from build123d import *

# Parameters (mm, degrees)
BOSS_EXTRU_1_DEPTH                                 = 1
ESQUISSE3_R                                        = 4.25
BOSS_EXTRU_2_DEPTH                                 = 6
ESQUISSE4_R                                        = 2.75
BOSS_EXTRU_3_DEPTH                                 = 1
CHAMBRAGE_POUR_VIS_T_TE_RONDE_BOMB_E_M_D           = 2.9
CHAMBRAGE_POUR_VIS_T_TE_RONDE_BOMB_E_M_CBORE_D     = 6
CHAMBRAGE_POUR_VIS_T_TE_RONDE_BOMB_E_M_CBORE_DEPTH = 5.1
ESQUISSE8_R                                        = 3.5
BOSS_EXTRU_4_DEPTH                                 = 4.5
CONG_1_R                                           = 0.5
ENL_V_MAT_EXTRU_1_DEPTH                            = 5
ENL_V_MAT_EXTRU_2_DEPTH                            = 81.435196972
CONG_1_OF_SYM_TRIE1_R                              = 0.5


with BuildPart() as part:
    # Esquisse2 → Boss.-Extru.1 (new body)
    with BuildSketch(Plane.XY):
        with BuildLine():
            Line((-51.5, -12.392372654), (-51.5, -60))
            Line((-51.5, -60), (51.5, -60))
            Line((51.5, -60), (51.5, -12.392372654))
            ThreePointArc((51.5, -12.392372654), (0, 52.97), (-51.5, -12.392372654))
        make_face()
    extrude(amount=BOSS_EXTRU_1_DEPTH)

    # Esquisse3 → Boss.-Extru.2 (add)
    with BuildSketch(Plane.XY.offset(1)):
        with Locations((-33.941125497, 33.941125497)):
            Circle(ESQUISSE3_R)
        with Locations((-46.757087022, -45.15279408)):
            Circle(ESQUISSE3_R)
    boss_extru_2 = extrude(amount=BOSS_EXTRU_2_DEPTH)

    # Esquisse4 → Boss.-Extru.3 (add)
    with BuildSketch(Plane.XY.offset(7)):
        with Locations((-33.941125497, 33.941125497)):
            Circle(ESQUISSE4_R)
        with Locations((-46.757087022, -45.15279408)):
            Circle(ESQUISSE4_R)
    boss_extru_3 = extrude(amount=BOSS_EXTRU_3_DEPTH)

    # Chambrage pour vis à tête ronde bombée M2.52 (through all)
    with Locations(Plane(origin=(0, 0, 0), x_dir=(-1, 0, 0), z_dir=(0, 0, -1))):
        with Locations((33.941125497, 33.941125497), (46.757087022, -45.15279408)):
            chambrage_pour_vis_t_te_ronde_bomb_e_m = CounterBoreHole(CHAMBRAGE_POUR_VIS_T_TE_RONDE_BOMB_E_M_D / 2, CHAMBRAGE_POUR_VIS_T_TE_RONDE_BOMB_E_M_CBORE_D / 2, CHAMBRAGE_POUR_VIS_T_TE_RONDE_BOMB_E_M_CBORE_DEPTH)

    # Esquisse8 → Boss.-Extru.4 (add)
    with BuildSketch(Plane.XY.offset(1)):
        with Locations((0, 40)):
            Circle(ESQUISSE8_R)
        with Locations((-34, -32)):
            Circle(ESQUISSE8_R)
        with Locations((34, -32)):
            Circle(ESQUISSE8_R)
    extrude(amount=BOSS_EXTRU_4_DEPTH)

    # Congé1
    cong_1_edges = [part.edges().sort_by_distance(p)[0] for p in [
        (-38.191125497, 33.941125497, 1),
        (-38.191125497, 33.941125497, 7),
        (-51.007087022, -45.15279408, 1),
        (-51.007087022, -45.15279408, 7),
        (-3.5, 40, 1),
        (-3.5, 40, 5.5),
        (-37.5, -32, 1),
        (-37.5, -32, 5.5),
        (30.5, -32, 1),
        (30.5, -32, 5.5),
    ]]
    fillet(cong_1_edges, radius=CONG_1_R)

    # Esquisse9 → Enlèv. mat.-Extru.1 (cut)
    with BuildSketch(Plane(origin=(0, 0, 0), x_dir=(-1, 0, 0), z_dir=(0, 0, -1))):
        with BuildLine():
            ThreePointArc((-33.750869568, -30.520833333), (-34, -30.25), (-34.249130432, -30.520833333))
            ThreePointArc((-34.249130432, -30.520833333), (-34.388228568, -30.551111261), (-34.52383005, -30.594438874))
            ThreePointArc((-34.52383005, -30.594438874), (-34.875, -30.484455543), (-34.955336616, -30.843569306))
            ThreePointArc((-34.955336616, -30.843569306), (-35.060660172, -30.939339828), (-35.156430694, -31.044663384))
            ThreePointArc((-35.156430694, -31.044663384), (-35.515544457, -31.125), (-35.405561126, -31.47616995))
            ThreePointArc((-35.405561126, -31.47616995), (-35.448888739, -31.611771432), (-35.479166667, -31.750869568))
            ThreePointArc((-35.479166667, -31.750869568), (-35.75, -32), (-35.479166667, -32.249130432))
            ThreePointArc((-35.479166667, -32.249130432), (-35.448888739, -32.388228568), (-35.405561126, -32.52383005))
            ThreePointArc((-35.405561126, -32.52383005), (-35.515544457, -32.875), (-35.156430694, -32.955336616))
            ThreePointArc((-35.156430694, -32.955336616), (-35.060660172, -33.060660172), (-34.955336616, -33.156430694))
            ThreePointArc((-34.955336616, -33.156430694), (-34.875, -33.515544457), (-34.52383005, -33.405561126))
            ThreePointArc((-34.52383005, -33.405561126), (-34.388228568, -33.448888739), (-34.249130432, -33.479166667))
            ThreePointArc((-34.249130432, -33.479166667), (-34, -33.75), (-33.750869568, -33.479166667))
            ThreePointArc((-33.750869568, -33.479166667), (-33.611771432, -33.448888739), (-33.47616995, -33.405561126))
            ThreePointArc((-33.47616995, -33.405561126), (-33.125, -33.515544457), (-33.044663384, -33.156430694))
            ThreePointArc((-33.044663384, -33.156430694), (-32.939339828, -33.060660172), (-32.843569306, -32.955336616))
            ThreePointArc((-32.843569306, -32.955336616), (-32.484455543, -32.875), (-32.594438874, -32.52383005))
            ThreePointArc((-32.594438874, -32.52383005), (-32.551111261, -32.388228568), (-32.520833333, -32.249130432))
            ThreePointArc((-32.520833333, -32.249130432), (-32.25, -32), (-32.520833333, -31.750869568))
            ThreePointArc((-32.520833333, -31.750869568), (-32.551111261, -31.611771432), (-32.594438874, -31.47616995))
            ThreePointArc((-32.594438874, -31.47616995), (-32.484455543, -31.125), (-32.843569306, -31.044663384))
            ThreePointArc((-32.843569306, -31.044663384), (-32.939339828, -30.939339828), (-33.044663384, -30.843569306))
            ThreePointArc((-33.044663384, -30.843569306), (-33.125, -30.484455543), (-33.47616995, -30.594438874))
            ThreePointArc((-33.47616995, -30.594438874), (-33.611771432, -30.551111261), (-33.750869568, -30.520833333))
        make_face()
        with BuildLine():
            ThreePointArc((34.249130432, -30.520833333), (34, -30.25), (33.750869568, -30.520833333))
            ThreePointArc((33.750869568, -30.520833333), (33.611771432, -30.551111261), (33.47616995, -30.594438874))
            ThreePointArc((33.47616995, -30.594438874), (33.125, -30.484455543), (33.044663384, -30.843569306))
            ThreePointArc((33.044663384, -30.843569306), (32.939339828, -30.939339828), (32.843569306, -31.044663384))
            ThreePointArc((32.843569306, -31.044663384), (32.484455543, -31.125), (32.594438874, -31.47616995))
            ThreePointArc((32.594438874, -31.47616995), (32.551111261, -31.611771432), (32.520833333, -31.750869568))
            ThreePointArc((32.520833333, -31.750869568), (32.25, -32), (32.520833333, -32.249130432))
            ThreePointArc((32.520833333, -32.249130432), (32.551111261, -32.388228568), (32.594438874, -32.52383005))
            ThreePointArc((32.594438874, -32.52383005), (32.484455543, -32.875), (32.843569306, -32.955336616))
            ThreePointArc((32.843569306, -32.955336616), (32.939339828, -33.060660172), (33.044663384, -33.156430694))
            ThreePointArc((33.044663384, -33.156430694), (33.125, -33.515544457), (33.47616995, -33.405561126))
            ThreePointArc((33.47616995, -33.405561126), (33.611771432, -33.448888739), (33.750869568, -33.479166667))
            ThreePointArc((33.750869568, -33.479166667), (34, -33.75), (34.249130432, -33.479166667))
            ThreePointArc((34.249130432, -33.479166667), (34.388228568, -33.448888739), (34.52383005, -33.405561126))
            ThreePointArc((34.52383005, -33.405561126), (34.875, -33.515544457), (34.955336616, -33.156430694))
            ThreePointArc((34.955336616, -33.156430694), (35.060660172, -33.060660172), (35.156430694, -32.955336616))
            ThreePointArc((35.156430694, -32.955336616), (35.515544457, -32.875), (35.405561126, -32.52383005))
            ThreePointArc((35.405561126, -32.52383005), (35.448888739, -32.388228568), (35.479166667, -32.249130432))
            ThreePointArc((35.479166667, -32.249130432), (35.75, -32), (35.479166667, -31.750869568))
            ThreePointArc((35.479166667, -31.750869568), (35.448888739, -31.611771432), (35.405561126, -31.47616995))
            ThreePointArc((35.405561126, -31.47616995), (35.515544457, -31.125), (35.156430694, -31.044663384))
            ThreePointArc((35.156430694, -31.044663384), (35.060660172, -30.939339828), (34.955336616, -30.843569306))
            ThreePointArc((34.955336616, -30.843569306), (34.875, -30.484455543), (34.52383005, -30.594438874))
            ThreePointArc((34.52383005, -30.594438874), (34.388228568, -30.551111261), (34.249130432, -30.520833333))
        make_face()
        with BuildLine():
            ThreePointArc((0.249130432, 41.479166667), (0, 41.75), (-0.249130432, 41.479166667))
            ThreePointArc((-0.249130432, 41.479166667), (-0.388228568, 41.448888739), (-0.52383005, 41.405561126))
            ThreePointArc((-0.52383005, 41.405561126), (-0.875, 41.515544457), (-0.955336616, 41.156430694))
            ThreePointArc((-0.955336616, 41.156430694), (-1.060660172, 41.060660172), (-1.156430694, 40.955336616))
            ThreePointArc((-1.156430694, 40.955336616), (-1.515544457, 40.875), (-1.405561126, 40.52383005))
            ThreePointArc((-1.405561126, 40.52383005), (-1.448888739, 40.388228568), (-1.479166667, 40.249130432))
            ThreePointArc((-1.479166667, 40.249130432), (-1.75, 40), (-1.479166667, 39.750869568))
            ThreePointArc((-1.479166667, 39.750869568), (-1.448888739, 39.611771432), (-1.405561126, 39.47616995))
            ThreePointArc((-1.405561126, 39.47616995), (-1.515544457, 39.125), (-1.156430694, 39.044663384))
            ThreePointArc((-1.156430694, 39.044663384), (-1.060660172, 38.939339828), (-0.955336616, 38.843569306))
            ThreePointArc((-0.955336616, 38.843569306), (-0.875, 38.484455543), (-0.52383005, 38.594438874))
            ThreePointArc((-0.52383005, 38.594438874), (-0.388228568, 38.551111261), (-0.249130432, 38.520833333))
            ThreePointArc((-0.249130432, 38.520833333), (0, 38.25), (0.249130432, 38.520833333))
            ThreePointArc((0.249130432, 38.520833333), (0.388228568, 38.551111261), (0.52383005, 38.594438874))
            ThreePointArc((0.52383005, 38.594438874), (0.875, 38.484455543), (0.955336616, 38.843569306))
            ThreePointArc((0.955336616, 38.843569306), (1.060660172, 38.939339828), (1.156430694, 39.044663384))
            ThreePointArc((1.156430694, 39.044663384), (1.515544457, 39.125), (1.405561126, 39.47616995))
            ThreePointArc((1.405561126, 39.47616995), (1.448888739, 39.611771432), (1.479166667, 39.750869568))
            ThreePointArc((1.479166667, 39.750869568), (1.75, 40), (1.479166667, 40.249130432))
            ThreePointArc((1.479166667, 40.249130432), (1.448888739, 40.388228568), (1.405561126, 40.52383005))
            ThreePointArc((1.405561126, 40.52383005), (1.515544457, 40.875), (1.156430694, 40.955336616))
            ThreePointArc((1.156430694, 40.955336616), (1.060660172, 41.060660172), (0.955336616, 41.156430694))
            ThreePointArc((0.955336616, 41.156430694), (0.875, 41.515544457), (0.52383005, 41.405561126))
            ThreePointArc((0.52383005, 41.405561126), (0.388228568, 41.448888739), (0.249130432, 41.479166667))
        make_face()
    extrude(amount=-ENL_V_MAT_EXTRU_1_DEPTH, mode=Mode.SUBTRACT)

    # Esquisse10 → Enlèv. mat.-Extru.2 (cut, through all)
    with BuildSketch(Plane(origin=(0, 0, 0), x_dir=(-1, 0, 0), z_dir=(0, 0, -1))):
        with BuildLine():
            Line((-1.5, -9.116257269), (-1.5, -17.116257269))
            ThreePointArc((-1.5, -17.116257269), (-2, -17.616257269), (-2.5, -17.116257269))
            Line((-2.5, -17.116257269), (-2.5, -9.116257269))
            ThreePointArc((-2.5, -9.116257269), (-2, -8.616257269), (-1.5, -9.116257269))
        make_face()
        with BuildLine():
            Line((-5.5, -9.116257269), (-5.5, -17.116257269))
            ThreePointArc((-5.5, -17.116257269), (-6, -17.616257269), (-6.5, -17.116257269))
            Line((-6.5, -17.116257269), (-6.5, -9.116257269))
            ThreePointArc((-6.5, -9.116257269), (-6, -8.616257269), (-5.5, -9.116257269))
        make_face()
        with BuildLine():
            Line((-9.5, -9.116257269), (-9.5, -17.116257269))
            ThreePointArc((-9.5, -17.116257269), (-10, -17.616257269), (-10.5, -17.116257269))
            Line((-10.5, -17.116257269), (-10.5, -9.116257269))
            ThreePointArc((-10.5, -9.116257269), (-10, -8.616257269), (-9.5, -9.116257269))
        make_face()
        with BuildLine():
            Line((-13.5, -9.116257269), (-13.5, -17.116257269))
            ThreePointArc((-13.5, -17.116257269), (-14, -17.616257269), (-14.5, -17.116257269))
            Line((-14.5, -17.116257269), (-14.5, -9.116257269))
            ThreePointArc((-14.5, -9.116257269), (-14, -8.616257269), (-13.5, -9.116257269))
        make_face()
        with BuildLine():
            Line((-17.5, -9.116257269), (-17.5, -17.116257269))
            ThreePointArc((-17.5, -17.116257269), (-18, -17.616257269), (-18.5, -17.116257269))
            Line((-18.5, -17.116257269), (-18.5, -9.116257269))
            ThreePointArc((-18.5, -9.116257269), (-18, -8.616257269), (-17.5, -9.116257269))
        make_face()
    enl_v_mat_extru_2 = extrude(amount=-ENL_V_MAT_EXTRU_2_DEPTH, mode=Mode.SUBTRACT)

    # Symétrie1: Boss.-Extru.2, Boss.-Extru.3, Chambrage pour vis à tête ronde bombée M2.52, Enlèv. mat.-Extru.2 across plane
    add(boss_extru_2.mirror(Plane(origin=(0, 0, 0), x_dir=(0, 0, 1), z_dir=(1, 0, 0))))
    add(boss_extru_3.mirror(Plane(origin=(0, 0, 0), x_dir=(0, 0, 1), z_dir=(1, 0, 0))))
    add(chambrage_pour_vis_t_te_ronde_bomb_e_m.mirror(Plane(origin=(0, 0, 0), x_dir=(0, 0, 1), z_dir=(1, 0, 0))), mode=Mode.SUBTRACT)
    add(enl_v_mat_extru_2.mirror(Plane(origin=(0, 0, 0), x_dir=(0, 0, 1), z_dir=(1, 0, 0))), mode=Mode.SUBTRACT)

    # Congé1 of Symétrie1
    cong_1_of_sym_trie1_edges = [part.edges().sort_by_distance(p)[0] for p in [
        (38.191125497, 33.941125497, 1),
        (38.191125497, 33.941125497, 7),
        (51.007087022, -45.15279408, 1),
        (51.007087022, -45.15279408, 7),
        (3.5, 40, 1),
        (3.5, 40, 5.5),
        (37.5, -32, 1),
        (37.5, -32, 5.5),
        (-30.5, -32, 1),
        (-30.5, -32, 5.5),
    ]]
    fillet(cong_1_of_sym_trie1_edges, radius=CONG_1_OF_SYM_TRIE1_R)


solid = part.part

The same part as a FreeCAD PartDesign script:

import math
import FreeCAD as App
import Part
import Sketcher
Q = App.Units.Quantity


def edges_at(feature, points):
    """Names of the edges that pass closest to the given points."""
    edges = feature.Shape.Edges
    near = lambda p: min(range(len(edges)), key=lambda i: edges[i].distToShape(Part.Vertex(*p))[0])
    return sorted({f"Edge{near(p) + 1}" for p in points})

doc = App.newDocument("Part")
params = doc.addObject("Spreadsheet::Sheet", "Params")
for row, (alias, value) in enumerate([
    ("sketch1_width", "103 mm"),
    ("sketch1_radius", "52.97 mm"),
    ("pad1_length", "1 mm"),
    ("sketch2_diameter", "8.5 mm"),
    ("pad2_length", "6 mm"),
    ("sketch3_diameter", "5.5 mm"),
    ("pad3_length", "1 mm"),
    ("sketch4_diameter", "2.9 mm"),
    ("hole_diameter", "2.9 mm"),
    ("hole_cbore_diameter", "6 mm"),
    ("hole_cbore_depth", "5.1 mm"),
    ("sketch5_diameter", "7 mm"),
    ("pad4_length", "4.5 mm"),
    ("fillet_radius", "0.5 mm"),
    ("sketch6_radius", "1.5 mm"),
    ("sketch6_radius2", "0.25 mm"),
    ("pocket1_length", "5 mm"),
    ("sketch7_radius", "0.5 mm"),
    ("sketch7_height", "8 mm"),
    ("fillet2_radius", "0.5 mm"),
], start=1):
    params.set(f"A{row}", alias)
    params.set(f"B{row}", "=" + value)
    params.setAlias(f"B{row}", alias)

body = doc.addObject("PartDesign::Body", "Body")

# Sketch on XY plane
sketch1 = doc.addObject("Sketcher::SketchObject", "Sketch")
body.addObject(sketch1)
sketch1.AttachmentSupport = (doc.XY_Plane, [""])
sketch1.MapMode = "FlatFace"
sketch1.addGeometry([
    Part.LineSegment(App.Vector(-51.5, -12.392373, 0), App.Vector(-51.5, -60, 0)),
    Part.LineSegment(App.Vector(-51.5, -60, 0), App.Vector(51.5, -60, 0)),
    Part.LineSegment(App.Vector(51.5, -60, 0), App.Vector(51.5, -12.392373, 0)),
    Part.ArcOfCircle(Part.Circle(App.Vector(0, 0, 0), App.Vector(0, 0, 1), 52.97), math.radians(-13.529783), math.radians(193.529783)),
], False)
sketch1.addConstraint([
    Sketcher.Constraint("Coincident", 0, 2, 1, 1),
    Sketcher.Constraint("Coincident", 1, 2, 2, 1),
    Sketcher.Constraint("Coincident", 2, 2, 3, 1),
    Sketcher.Constraint("Coincident", 3, 2, 0, 1),
    Sketcher.Constraint("Vertical", 0),
    Sketcher.Constraint("Horizontal", 1),
    Sketcher.Constraint("Vertical", 2),
    Sketcher.Constraint("Coincident", 3, 3, -1, 1),
    Sketcher.Constraint("Horizontal", 2, 2, 3, 2),
    Sketcher.Constraint("DistanceX", 1, 1, 1, 2, Q("103 mm")),
    Sketcher.Constraint("Radius", 3, Q("52.97 mm")),
    Sketcher.Constraint("DistanceY", 0, 2, -1, 1, Q("60 mm")),
])
sketch1.setExpression("Constraints[9]", "Params.sketch1_width")
sketch1.setExpression("Constraints[10]", "Params.sketch1_radius")
pad1 = doc.addObject("PartDesign::Pad", "Pad")
body.addObject(pad1)
pad1.Profile = sketch1
pad1.setExpression("Length", "Params.pad1_length")

# Sketch on XY plane
sketch2 = doc.addObject("Sketcher::SketchObject", "Sketch001")
body.addObject(sketch2)
sketch2.AttachmentSupport = (doc.XY_Plane, [""])
sketch2.MapMode = "FlatFace"
sketch2.AttachmentOffset = App.Placement(App.Vector(0, 0, 1), App.Rotation())
sketch2.addGeometry([
    Part.Circle(App.Vector(-33.941125, 33.941125, 0), App.Vector(0, 0, 1), 4.25),
    Part.Circle(App.Vector(-46.757087, -45.152794, 0), App.Vector(0, 0, 1), 4.25),
], False)
sketch2.addConstraint([
    Sketcher.Constraint("Equal", 0, 1),
    Sketcher.Constraint("Diameter", 0, Q("8.5 mm")),
    Sketcher.Constraint("DistanceX", 1, 3, 0, 3, Q("12.815962 mm")),
    Sketcher.Constraint("DistanceY", 1, 3, 0, 3, Q("79.09392 mm")),
    Sketcher.Constraint("DistanceX", 0, 3, -1, 1, Q("33.941125 mm")),
    Sketcher.Constraint("DistanceY", -1, 1, 0, 3, Q("33.941125 mm")),
])
sketch2.setExpression("Constraints[1]", "Params.sketch2_diameter")
pad2 = doc.addObject("PartDesign::Pad", "Pad001")
body.addObject(pad2)
pad2.Profile = sketch2
pad2.setExpression("Length", "Params.pad2_length")

# Sketch on XY plane
sketch3 = doc.addObject("Sketcher::SketchObject", "Sketch002")
body.addObject(sketch3)
sketch3.AttachmentSupport = (doc.XY_Plane, [""])
sketch3.MapMode = "FlatFace"
sketch3.AttachmentOffset = App.Placement(App.Vector(0, 0, 7), App.Rotation())
sketch3.addGeometry([
    Part.Circle(App.Vector(-33.941125, 33.941125, 0), App.Vector(0, 0, 1), 2.75),
    Part.Circle(App.Vector(-46.757087, -45.152794, 0), App.Vector(0, 0, 1), 2.75),
], False)
sketch3.addConstraint([
    Sketcher.Constraint("Equal", 0, 1),
    Sketcher.Constraint("Diameter", 0, Q("5.5 mm")),
    Sketcher.Constraint("DistanceX", 1, 3, 0, 3, Q("12.815962 mm")),
    Sketcher.Constraint("DistanceY", 1, 3, 0, 3, Q("79.09392 mm")),
    Sketcher.Constraint("DistanceX", 0, 3, -1, 1, Q("33.941125 mm")),
    Sketcher.Constraint("DistanceY", -1, 1, 0, 3, Q("33.941125 mm")),
])
sketch3.setExpression("Constraints[1]", "Params.sketch3_diameter")
pad3 = doc.addObject("PartDesign::Pad", "Pad002")
body.addObject(pad3)
pad3.Profile = sketch3
pad3.setExpression("Length", "Params.pad3_length")

# Sketch on XY plane
sketch4 = doc.addObject("Sketcher::SketchObject", "Sketch003")
body.addObject(sketch4)
sketch4.AttachmentSupport = (doc.XY_Plane, [""])
sketch4.MapMode = "FlatFace"
sketch4.addGeometry([
    Part.Circle(App.Vector(-33.941125, 33.941125, 0), App.Vector(0, 0, 1), 1.45),
    Part.Circle(App.Vector(-46.757087, -45.152794, 0), App.Vector(0, 0, 1), 1.45),
], False)
sketch4.addConstraint([
    Sketcher.Constraint("Equal", 0, 1),
    Sketcher.Constraint("Diameter", 0, Q("2.9 mm")),
    Sketcher.Constraint("DistanceX", 1, 3, 0, 3, Q("12.815962 mm")),
    Sketcher.Constraint("DistanceY", 1, 3, 0, 3, Q("79.09392 mm")),
    Sketcher.Constraint("DistanceX", 0, 3, -1, 1, Q("33.941125 mm")),
    Sketcher.Constraint("DistanceY", -1, 1, 0, 3, Q("33.941125 mm")),
])
sketch4.setExpression("Constraints[1]", "Params.sketch4_diameter")
doc.recompute()
hole = doc.addObject("PartDesign::Hole", "Hole")
body.addObject(hole)
hole.Profile = sketch4
hole.ThreadType = "None"
hole.setExpression("Diameter", "Params.hole_diameter")
hole.DepthType = "ThroughAll"
hole.HoleCutType = "Counterbore"
hole.setExpression("HoleCutDiameter", "Params.hole_cbore_diameter")
hole.setExpression("HoleCutDepth", "Params.hole_cbore_depth")
hole.Reversed = True

# Sketch on XY plane
sketch5 = doc.addObject("Sketcher::SketchObject", "Sketch004")
body.addObject(sketch5)
sketch5.AttachmentSupport = (doc.XY_Plane, [""])
sketch5.MapMode = "FlatFace"
sketch5.AttachmentOffset = App.Placement(App.Vector(0, 0, 1), App.Rotation())
sketch5.addGeometry([
    Part.Circle(App.Vector(0, 40, 0), App.Vector(0, 0, 1), 3.5),
    Part.Circle(App.Vector(-34, -32, 0), App.Vector(0, 0, 1), 3.5),
    Part.Circle(App.Vector(34, -32, 0), App.Vector(0, 0, 1), 3.5),
], False)
sketch5.addConstraint([
    Sketcher.Constraint("Equal", 0, 1),
    Sketcher.Constraint("Equal", 1, 2),
    Sketcher.Constraint("Symmetric", 1, 3, 2, 3, -2),
    Sketcher.Constraint("PointOnObject", 0, 3, -2),
    Sketcher.Constraint("Diameter", 0, Q("7 mm")),
    Sketcher.Constraint("DistanceY", -1, 1, 0, 3, Q("40 mm")),
    Sketcher.Constraint("DistanceX", 1, 3, -1, 1, Q("34 mm")),
    Sketcher.Constraint("DistanceY", 1, 3, -1, 1, Q("32 mm")),
])
sketch5.setExpression("Constraints[4]", "Params.sketch5_diameter")
pad4 = doc.addObject("PartDesign::Pad", "Pad003")
body.addObject(pad4)
pad4.Profile = sketch5
pad4.setExpression("Length", "Params.pad4_length")
doc.recompute()

fillet = doc.addObject("PartDesign::Fillet", "Fillet")
body.addObject(fillet)
fillet.Base = (pad4, edges_at(pad4, [
    (-38.191, 33.941, 1),
    (-38.191, 33.941, 7),
    (-51.007, -45.153, 1),
    (-51.007, -45.153, 7),
    (-3.5, 40, 1),
    (-3.5, 40, 5.5),
    (-37.5, -32, 1),
    (-37.5, -32, 5.5),
    (30.5, -32, 1),
    (30.5, -32, 5.5),
]))
fillet.setExpression("Radius", "Params.fillet_radius")

# Sketch on XY plane
sketch6 = doc.addObject("Sketcher::SketchObject", "Sketch005")
body.addObject(sketch6)
sketch6.AttachmentSupport = (doc.XY_Plane, [""])
sketch6.MapMode = "FlatFace"
sketch6.addGeometry([
    Part.ArcOfCircle(Part.Circle(App.Vector(34, -30.5, 0), App.Vector(0, 0, 1), 0.25), math.radians(-4.780192), math.radians(184.780192)),  # 0
    Part.ArcOfCircle(Part.Circle(App.Vector(34, -32, 0), App.Vector(0, 0, 1), 1.5), math.radians(69.560384), math.radians(80.439616)),  # 1
    Part.ArcOfCircle(Part.Circle(App.Vector(34.75, -30.700962, 0), App.Vector(0, 0, 1), 0.25), math.radians(-34.780192), math.radians(154.780192)),  # 2
    Part.ArcOfCircle(Part.Circle(App.Vector(34, -32, 0), App.Vector(0, 0, 1), 1.5), math.radians(39.560383), math.radians(50.439617)),  # 3
    Part.ArcOfCircle(Part.Circle(App.Vector(35.299038, -31.25, 0), App.Vector(0, 0, 1), 0.25), math.radians(-64.780192), math.radians(124.780192)),  # 4
    Part.ArcOfCircle(Part.Circle(App.Vector(34, -32, 0), App.Vector(0, 0, 1), 1.5), math.radians(9.560384), math.radians(20.439616)),  # 5
    Part.ArcOfCircle(Part.Circle(App.Vector(35.5, -32, 0), App.Vector(0, 0, 1), 0.25), math.radians(-94.780192), math.radians(94.780192)),  # 6
    Part.ArcOfCircle(Part.Circle(App.Vector(34, -32, 0), App.Vector(0, 0, 1), 1.5), math.radians(-20.439616), math.radians(-9.560384)),  # 7
    Part.ArcOfCircle(Part.Circle(App.Vector(35.299038, -32.75, 0), App.Vector(0, 0, 1), 0.25), math.radians(-124.780192), math.radians(64.780192)),  # 8
    Part.ArcOfCircle(Part.Circle(App.Vector(34, -32, 0), App.Vector(0, 0, 1), 1.5), math.radians(-50.439617), math.radians(-39.560383)),  # 9
    Part.ArcOfCircle(Part.Circle(App.Vector(34.75, -33.299038, 0), App.Vector(0, 0, 1), 0.25), math.radians(-154.780192), math.radians(34.780192)),  # 10
    Part.ArcOfCircle(Part.Circle(App.Vector(34, -32, 0), App.Vector(0, 0, 1), 1.5), math.radians(-80.439616), math.radians(-69.560384)),  # 11
    Part.ArcOfCircle(Part.Circle(App.Vector(34, -33.5, 0), App.Vector(0, 0, 1), 0.25), math.radians(175.219808), math.radians(364.780192)),  # 12
    Part.ArcOfCircle(Part.Circle(App.Vector(34, -32, 0), App.Vector(0, 0, 1), 1.5), math.radians(-110.439616), math.radians(-99.560384)),  # 13
    Part.ArcOfCircle(Part.Circle(App.Vector(33.25, -33.299038, 0), App.Vector(0, 0, 1), 0.25), math.radians(145.219808), math.radians(334.780192)),  # 14
    Part.ArcOfCircle(Part.Circle(App.Vector(34, -32, 0), App.Vector(0, 0, 1), 1.5), math.radians(-140.439617), math.radians(-129.560383)),  # 15
    Part.ArcOfCircle(Part.Circle(App.Vector(32.700962, -32.75, 0), App.Vector(0, 0, 1), 0.25), math.radians(115.219808), math.radians(304.780192)),  # 16
    Part.ArcOfCircle(Part.Circle(App.Vector(34, -32, 0), App.Vector(0, 0, 1), 1.5), math.radians(-170.439616), math.radians(-159.560384)),  # 17
    Part.ArcOfCircle(Part.Circle(App.Vector(32.5, -32, 0), App.Vector(0, 0, 1), 0.25), math.radians(85.219808), math.radians(274.780192)),  # 18
    Part.ArcOfCircle(Part.Circle(App.Vector(34, -32, 0), App.Vector(0, 0, 1), 1.5), math.radians(159.560384), math.radians(170.439616)),  # 19
    Part.ArcOfCircle(Part.Circle(App.Vector(32.700962, -31.25, 0), App.Vector(0, 0, 1), 0.25), math.radians(55.219808), math.radians(244.780192)),  # 20
    Part.ArcOfCircle(Part.Circle(App.Vector(34, -32, 0), App.Vector(0, 0, 1), 1.5), math.radians(129.560383), math.radians(140.439617)),  # 21
    Part.ArcOfCircle(Part.Circle(App.Vector(33.25, -30.700962, 0), App.Vector(0, 0, 1), 0.25), math.radians(25.219808), math.radians(214.780192)),  # 22
    Part.ArcOfCircle(Part.Circle(App.Vector(34, -32, 0), App.Vector(0, 0, 1), 1.5), math.radians(99.560384), math.radians(110.439616)),  # 23
    Part.ArcOfCircle(Part.Circle(App.Vector(-34, -30.5, 0), App.Vector(0, 0, 1), 0.25), math.radians(-4.780192), math.radians(184.780192)),  # 24
    Part.ArcOfCircle(Part.Circle(App.Vector(-34, -32, 0), App.Vector(0, 0, 1), 1.5), math.radians(69.560384), math.radians(80.439616)),  # 25
    Part.ArcOfCircle(Part.Circle(App.Vector(-33.25, -30.700962, 0), App.Vector(0, 0, 1), 0.25), math.radians(-34.780192), math.radians(154.780192)),  # 26
    Part.ArcOfCircle(Part.Circle(App.Vector(-34, -32, 0), App.Vector(0, 0, 1), 1.5), math.radians(39.560383), math.radians(50.439617)),  # 27
    Part.ArcOfCircle(Part.Circle(App.Vector(-32.700962, -31.25, 0), App.Vector(0, 0, 1), 0.25), math.radians(-64.780192), math.radians(124.780192)),  # 28
    Part.ArcOfCircle(Part.Circle(App.Vector(-34, -32, 0), App.Vector(0, 0, 1), 1.5), math.radians(9.560384), math.radians(20.439616)),  # 29
    Part.ArcOfCircle(Part.Circle(App.Vector(-32.5, -32, 0), App.Vector(0, 0, 1), 0.25), math.radians(-94.780192), math.radians(94.780192)),  # 30
    Part.ArcOfCircle(Part.Circle(App.Vector(-34, -32, 0), App.Vector(0, 0, 1), 1.5), math.radians(-20.439616), math.radians(-9.560384)),  # 31
    Part.ArcOfCircle(Part.Circle(App.Vector(-32.700962, -32.75, 0), App.Vector(0, 0, 1), 0.25), math.radians(-124.780192), math.radians(64.780192)),  # 32
    Part.ArcOfCircle(Part.Circle(App.Vector(-34, -32, 0), App.Vector(0, 0, 1), 1.5), math.radians(-50.439617), math.radians(-39.560383)),  # 33
    Part.ArcOfCircle(Part.Circle(App.Vector(-33.25, -33.299038, 0), App.Vector(0, 0, 1), 0.25), math.radians(-154.780192), math.radians(34.780192)),  # 34
    Part.ArcOfCircle(Part.Circle(App.Vector(-34, -32, 0), App.Vector(0, 0, 1), 1.5), math.radians(-80.439616), math.radians(-69.560384)),  # 35
    Part.ArcOfCircle(Part.Circle(App.Vector(-34, -33.5, 0), App.Vector(0, 0, 1), 0.25), math.radians(175.219808), math.radians(364.780192)),  # 36
    Part.ArcOfCircle(Part.Circle(App.Vector(-34, -32, 0), App.Vector(0, 0, 1), 1.5), math.radians(-110.439616), math.radians(-99.560384)),  # 37
    Part.ArcOfCircle(Part.Circle(App.Vector(-34.75, -33.299038, 0), App.Vector(0, 0, 1), 0.25), math.radians(145.219808), math.radians(334.780192)),  # 38
    Part.ArcOfCircle(Part.Circle(App.Vector(-34, -32, 0), App.Vector(0, 0, 1), 1.5), math.radians(-140.439617), math.radians(-129.560383)),  # 39
    Part.ArcOfCircle(Part.Circle(App.Vector(-35.299038, -32.75, 0), App.Vector(0, 0, 1), 0.25), math.radians(115.219808), math.radians(304.780192)),  # 40
    Part.ArcOfCircle(Part.Circle(App.Vector(-34, -32, 0), App.Vector(0, 0, 1), 1.5), math.radians(-170.439616), math.radians(-159.560384)),  # 41
    Part.ArcOfCircle(Part.Circle(App.Vector(-35.5, -32, 0), App.Vector(0, 0, 1), 0.25), math.radians(85.219808), math.radians(274.780192)),  # 42
    Part.ArcOfCircle(Part.Circle(App.Vector(-34, -32, 0), App.Vector(0, 0, 1), 1.5), math.radians(159.560384), math.radians(170.439616)),  # 43
    Part.ArcOfCircle(Part.Circle(App.Vector(-35.299038, -31.25, 0), App.Vector(0, 0, 1), 0.25), math.radians(55.219808), math.radians(244.780192)),  # 44
    Part.ArcOfCircle(Part.Circle(App.Vector(-34, -32, 0), App.Vector(0, 0, 1), 1.5), math.radians(129.560383), math.radians(140.439617)),  # 45
    Part.ArcOfCircle(Part.Circle(App.Vector(-34.75, -30.700962, 0), App.Vector(0, 0, 1), 0.25), math.radians(25.219808), math.radians(214.780192)),  # 46
    Part.ArcOfCircle(Part.Circle(App.Vector(-34, -32, 0), App.Vector(0, 0, 1), 1.5), math.radians(99.560384), math.radians(110.439616)),  # 47
    Part.ArcOfCircle(Part.Circle(App.Vector(0, 41.5, 0), App.Vector(0, 0, 1), 0.25), math.radians(-4.780192), math.radians(184.780192)),  # 48
    Part.ArcOfCircle(Part.Circle(App.Vector(0, 40, 0), App.Vector(0, 0, 1), 1.5), math.radians(69.560384), math.radians(80.439616)),  # 49
    Part.ArcOfCircle(Part.Circle(App.Vector(0.75, 41.299038, 0), App.Vector(0, 0, 1), 0.25), math.radians(-34.780192), math.radians(154.780192)),  # 50
    Part.ArcOfCircle(Part.Circle(App.Vector(0, 40, 0), App.Vector(0, 0, 1), 1.5), math.radians(39.560383), math.radians(50.439617)),  # 51
    Part.ArcOfCircle(Part.Circle(App.Vector(1.299038, 40.75, 0), App.Vector(0, 0, 1), 0.25), math.radians(-64.780192), math.radians(124.780192)),  # 52
    Part.ArcOfCircle(Part.Circle(App.Vector(0, 40, 0), App.Vector(0, 0, 1), 1.5), math.radians(9.560384), math.radians(20.439616)),  # 53
    Part.ArcOfCircle(Part.Circle(App.Vector(1.5, 40, 0), App.Vector(0, 0, 1), 0.25), math.radians(-94.780192), math.radians(94.780192)),  # 54
    Part.ArcOfCircle(Part.Circle(App.Vector(0, 40, 0), App.Vector(0, 0, 1), 1.5), math.radians(-20.439616), math.radians(-9.560384)),  # 55
    Part.ArcOfCircle(Part.Circle(App.Vector(1.299038, 39.25, 0), App.Vector(0, 0, 1), 0.25), math.radians(-124.780192), math.radians(64.780192)),  # 56
    Part.ArcOfCircle(Part.Circle(App.Vector(0, 40, 0), App.Vector(0, 0, 1), 1.5), math.radians(-50.439617), math.radians(-39.560383)),  # 57
    Part.ArcOfCircle(Part.Circle(App.Vector(0.75, 38.700962, 0), App.Vector(0, 0, 1), 0.25), math.radians(-154.780192), math.radians(34.780192)),  # 58
    Part.ArcOfCircle(Part.Circle(App.Vector(0, 40, 0), App.Vector(0, 0, 1), 1.5), math.radians(-80.439616), math.radians(-69.560384)),  # 59
    Part.ArcOfCircle(Part.Circle(App.Vector(0, 38.5, 0), App.Vector(0, 0, 1), 0.25), math.radians(175.219808), math.radians(364.780192)),  # 60
    Part.ArcOfCircle(Part.Circle(App.Vector(0, 40, 0), App.Vector(0, 0, 1), 1.5), math.radians(-110.439616), math.radians(-99.560384)),  # 61
    Part.ArcOfCircle(Part.Circle(App.Vector(-0.75, 38.700962, 0), App.Vector(0, 0, 1), 0.25), math.radians(145.219808), math.radians(334.780192)),  # 62
    Part.ArcOfCircle(Part.Circle(App.Vector(0, 40, 0), App.Vector(0, 0, 1), 1.5), math.radians(-140.439617), math.radians(-129.560383)),  # 63
    Part.ArcOfCircle(Part.Circle(App.Vector(-1.299038, 39.25, 0), App.Vector(0, 0, 1), 0.25), math.radians(115.219808), math.radians(304.780192)),  # 64
    Part.ArcOfCircle(Part.Circle(App.Vector(0, 40, 0), App.Vector(0, 0, 1), 1.5), math.radians(-170.439616), math.radians(-159.560384)),  # 65
    Part.ArcOfCircle(Part.Circle(App.Vector(-1.5, 40, 0), App.Vector(0, 0, 1), 0.25), math.radians(85.219808), math.radians(274.780192)),  # 66
    Part.ArcOfCircle(Part.Circle(App.Vector(0, 40, 0), App.Vector(0, 0, 1), 1.5), math.radians(159.560384), math.radians(170.439616)),  # 67
    Part.ArcOfCircle(Part.Circle(App.Vector(-1.299038, 40.75, 0), App.Vector(0, 0, 1), 0.25), math.radians(55.219808), math.radians(244.780192)),  # 68
    Part.ArcOfCircle(Part.Circle(App.Vector(0, 40, 0), App.Vector(0, 0, 1), 1.5), math.radians(129.560383), math.radians(140.439617)),  # 69
    Part.ArcOfCircle(Part.Circle(App.Vector(-0.75, 41.299038, 0), App.Vector(0, 0, 1), 0.25), math.radians(25.219808), math.radians(214.780192)),  # 70
    Part.ArcOfCircle(Part.Circle(App.Vector(0, 40, 0), App.Vector(0, 0, 1), 1.5), math.radians(99.560384), math.radians(110.439616)),  # 71
], False)
sketch6.addConstraint([
    Sketcher.Constraint("Coincident", 0, 1, 1, 2),
    Sketcher.Constraint("Coincident", 1, 1, 2, 2),
    Sketcher.Constraint("Coincident", 2, 1, 3, 2),
    Sketcher.Constraint("Coincident", 3, 1, 4, 2),
    Sketcher.Constraint("Coincident", 4, 1, 5, 2),
    Sketcher.Constraint("Coincident", 5, 1, 6, 2),
    Sketcher.Constraint("Coincident", 6, 1, 7, 2),
    Sketcher.Constraint("Coincident", 7, 1, 8, 2),
    Sketcher.Constraint("Coincident", 8, 1, 9, 2),
    Sketcher.Constraint("Coincident", 9, 1, 10, 2),
    Sketcher.Constraint("Coincident", 10, 1, 11, 2),
    Sketcher.Constraint("Coincident", 11, 1, 12, 2),
    Sketcher.Constraint("Coincident", 12, 1, 13, 2),
    Sketcher.Constraint("Coincident", 13, 1, 14, 2),
    Sketcher.Constraint("Coincident", 14, 1, 15, 2),
    Sketcher.Constraint("Coincident", 15, 1, 16, 2),
    Sketcher.Constraint("Coincident", 16, 1, 17, 2),
    Sketcher.Constraint("Coincident", 17, 1, 18, 2),
    Sketcher.Constraint("Coincident", 18, 1, 19, 2),
    Sketcher.Constraint("Coincident", 19, 1, 20, 2),
    Sketcher.Constraint("Coincident", 20, 1, 21, 2),
    Sketcher.Constraint("Coincident", 21, 1, 22, 2),
    Sketcher.Constraint("Coincident", 22, 1, 23, 2),
    Sketcher.Constraint("Coincident", 23, 1, 0, 2),
    Sketcher.Constraint("Coincident", 24, 1, 25, 2),
    Sketcher.Constraint("Coincident", 25, 1, 26, 2),
    Sketcher.Constraint("Coincident", 26, 1, 27, 2),
    Sketcher.Constraint("Coincident", 27, 1, 28, 2),
    Sketcher.Constraint("Coincident", 28, 1, 29, 2),
    Sketcher.Constraint("Coincident", 29, 1, 30, 2),
    Sketcher.Constraint("Coincident", 30, 1, 31, 2),
    Sketcher.Constraint("Coincident", 31, 1, 32, 2),
    Sketcher.Constraint("Coincident", 32, 1, 33, 2),
    Sketcher.Constraint("Coincident", 33, 1, 34, 2),
    Sketcher.Constraint("Coincident", 34, 1, 35, 2),
    Sketcher.Constraint("Coincident", 35, 1, 36, 2),
    Sketcher.Constraint("Coincident", 36, 1, 37, 2),
    Sketcher.Constraint("Coincident", 37, 1, 38, 2),
    Sketcher.Constraint("Coincident", 38, 1, 39, 2),
    Sketcher.Constraint("Coincident", 39, 1, 40, 2),
    Sketcher.Constraint("Coincident", 40, 1, 41, 2),
    Sketcher.Constraint("Coincident", 41, 1, 42, 2),
    Sketcher.Constraint("Coincident", 42, 1, 43, 2),
    Sketcher.Constraint("Coincident", 43, 1, 44, 2),
    Sketcher.Constraint("Coincident", 44, 1, 45, 2),
    Sketcher.Constraint("Coincident", 45, 1, 46, 2),
    Sketcher.Constraint("Coincident", 46, 1, 47, 2),
    Sketcher.Constraint("Coincident", 47, 1, 24, 2),
    Sketcher.Constraint("Coincident", 48, 1, 49, 2),
    Sketcher.Constraint("Coincident", 49, 1, 50, 2),
    Sketcher.Constraint("Coincident", 50, 1, 51, 2),
    Sketcher.Constraint("Coincident", 51, 1, 52, 2),
    Sketcher.Constraint("Coincident", 52, 1, 53, 2),
    Sketcher.Constraint("Coincident", 53, 1, 54, 2),
    Sketcher.Constraint("Coincident", 54, 1, 55, 2),
    Sketcher.Constraint("Coincident", 55, 1, 56, 2),
    Sketcher.Constraint("Coincident", 56, 1, 57, 2),
    Sketcher.Constraint("Coincident", 57, 1, 58, 2),
    Sketcher.Constraint("Coincident", 58, 1, 59, 2),
    Sketcher.Constraint("Coincident", 59, 1, 60, 2),
    Sketcher.Constraint("Coincident", 60, 1, 61, 2),
    Sketcher.Constraint("Coincident", 61, 1, 62, 2),
    Sketcher.Constraint("Coincident", 62, 1, 63, 2),
    Sketcher.Constraint("Coincident", 63, 1, 64, 2),
    Sketcher.Constraint("Coincident", 64, 1, 65, 2),
    Sketcher.Constraint("Coincident", 65, 1, 66, 2),
    Sketcher.Constraint("Coincident", 66, 1, 67, 2),
    Sketcher.Constraint("Coincident", 67, 1, 68, 2),
    Sketcher.Constraint("Coincident", 68, 1, 69, 2),
    Sketcher.Constraint("Coincident", 69, 1, 70, 2),
    Sketcher.Constraint("Coincident", 70, 1, 71, 2),
    Sketcher.Constraint("Coincident", 71, 1, 48, 2),
    Sketcher.Constraint("Coincident", 3, 3, 1, 3),
    Sketcher.Constraint("Coincident", 5, 3, 1, 3),
    Sketcher.Constraint("Coincident", 7, 3, 1, 3),
    Sketcher.Constraint("Coincident", 9, 3, 1, 3),
    Sketcher.Constraint("Coincident", 11, 3, 1, 3),
    Sketcher.Constraint("Coincident", 13, 3, 1, 3),
    Sketcher.Constraint("Coincident", 15, 3, 1, 3),
    Sketcher.Constraint("Coincident", 17, 3, 1, 3),
    Sketcher.Constraint("Coincident", 19, 3, 1, 3),
    Sketcher.Constraint("Coincident", 21, 3, 1, 3),
    Sketcher.Constraint("Coincident", 23, 3, 1, 3),
    Sketcher.Constraint("Coincident", 27, 3, 25, 3),
    Sketcher.Constraint("Coincident", 29, 3, 25, 3),
    Sketcher.Constraint("Coincident", 31, 3, 25, 3),
    Sketcher.Constraint("Coincident", 33, 3, 25, 3),
    Sketcher.Constraint("Coincident", 35, 3, 25, 3),
    Sketcher.Constraint("Coincident", 37, 3, 25, 3),
    Sketcher.Constraint("Coincident", 39, 3, 25, 3),
    Sketcher.Constraint("Coincident", 41, 3, 25, 3),
    Sketcher.Constraint("Coincident", 43, 3, 25, 3),
    Sketcher.Constraint("Coincident", 45, 3, 25, 3),
    Sketcher.Constraint("Coincident", 47, 3, 25, 3),
    Sketcher.Constraint("Coincident", 51, 3, 49, 3),
    Sketcher.Constraint("Coincident", 53, 3, 49, 3),
    Sketcher.Constraint("Coincident", 55, 3, 49, 3),
    Sketcher.Constraint("Coincident", 57, 3, 49, 3),
    Sketcher.Constraint("Coincident", 59, 3, 49, 3),
    Sketcher.Constraint("Coincident", 61, 3, 49, 3),
    Sketcher.Constraint("Coincident", 63, 3, 49, 3),
    Sketcher.Constraint("Coincident", 65, 3, 49, 3),
    Sketcher.Constraint("Coincident", 67, 3, 49, 3),
    Sketcher.Constraint("Coincident", 69, 3, 49, 3),
    Sketcher.Constraint("Coincident", 71, 3, 49, 3),
    Sketcher.Constraint("Equal", 0, 2),
    Sketcher.Constraint("Equal", 1, 3),
    Sketcher.Constraint("Equal", 2, 4),
    Sketcher.Constraint("Equal", 3, 5),
    Sketcher.Constraint("Equal", 4, 6),
    Sketcher.Constraint("Equal", 5, 7),
    Sketcher.Constraint("Equal", 6, 8),
    Sketcher.Constraint("Equal", 7, 9),
    Sketcher.Constraint("Equal", 8, 10),
    Sketcher.Constraint("Equal", 9, 11),
    Sketcher.Constraint("Equal", 10, 12),
    Sketcher.Constraint("Equal", 11, 13),
    Sketcher.Constraint("Equal", 12, 14),
    Sketcher.Constraint("Equal", 13, 15),
    Sketcher.Constraint("Equal", 14, 16),
    Sketcher.Constraint("Equal", 15, 17),
    Sketcher.Constraint("Equal", 16, 18),
    Sketcher.Constraint("Equal", 17, 19),
    Sketcher.Constraint("Equal", 18, 20),
    Sketcher.Constraint("Equal", 19, 21),
    Sketcher.Constraint("Equal", 20, 22),
    Sketcher.Constraint("Equal", 21, 23),
    Sketcher.Constraint("Equal", 22, 24),
    Sketcher.Constraint("Equal", 23, 25),
    Sketcher.Constraint("Equal", 24, 26),
    Sketcher.Constraint("Equal", 25, 27),
    Sketcher.Constraint("Equal", 26, 28),
    Sketcher.Constraint("Equal", 27, 29),
    Sketcher.Constraint("Equal", 28, 30),
    Sketcher.Constraint("Equal", 29, 31),
    Sketcher.Constraint("Equal", 30, 32),
    Sketcher.Constraint("Equal", 31, 33),
    Sketcher.Constraint("Equal", 32, 34),
    Sketcher.Constraint("Equal", 33, 35),
    Sketcher.Constraint("Equal", 34, 36),
    Sketcher.Constraint("Equal", 35, 37),
    Sketcher.Constraint("Equal", 36, 38),
    Sketcher.Constraint("Equal", 37, 39),
    Sketcher.Constraint("Equal", 38, 40),
    Sketcher.Constraint("Equal", 39, 41),
    Sketcher.Constraint("Equal", 40, 42),
    Sketcher.Constraint("Equal", 41, 43),
    Sketcher.Constraint("Equal", 42, 44),
    Sketcher.Constraint("Equal", 43, 45),
    Sketcher.Constraint("Equal", 44, 46),
    Sketcher.Constraint("Equal", 45, 47),
    Sketcher.Constraint("Equal", 46, 48),
    Sketcher.Constraint("Equal", 47, 49),
    Sketcher.Constraint("Equal", 48, 50),
    Sketcher.Constraint("Equal", 49, 51),
    Sketcher.Constraint("Equal", 50, 52),
    Sketcher.Constraint("Equal", 51, 53),
    Sketcher.Constraint("Equal", 52, 54),
    Sketcher.Constraint("Equal", 53, 55),
    Sketcher.Constraint("Equal", 54, 56),
    Sketcher.Constraint("Equal", 55, 57),
    Sketcher.Constraint("Equal", 56, 58),
    Sketcher.Constraint("Equal", 57, 59),
    Sketcher.Constraint("Equal", 58, 60),
    Sketcher.Constraint("Equal", 59, 61),
    Sketcher.Constraint("Equal", 60, 62),
    Sketcher.Constraint("Equal", 61, 63),
    Sketcher.Constraint("Equal", 62, 64),
    Sketcher.Constraint("Equal", 63, 65),
    Sketcher.Constraint("Equal", 64, 66),
    Sketcher.Constraint("Equal", 65, 67),
    Sketcher.Constraint("Equal", 66, 68),
    Sketcher.Constraint("Equal", 67, 69),
    Sketcher.Constraint("Equal", 68, 70),
    Sketcher.Constraint("Equal", 69, 71),
    Sketcher.Constraint("Symmetric", 0, 3, 24, 3, -2),
    Sketcher.Constraint("Symmetric", 1, 3, 25, 3, -2),
    Sketcher.Constraint("Symmetric", 22, 3, 26, 3, -2),
    Sketcher.Constraint("Symmetric", 20, 3, 28, 3, -2),
    Sketcher.Constraint("Symmetric", 18, 3, 30, 3, -2),
    Sketcher.Constraint("Symmetric", 16, 3, 32, 3, -2),
    Sketcher.Constraint("Symmetric", 14, 3, 34, 3, -2),
    Sketcher.Constraint("Symmetric", 12, 3, 36, 3, -2),
    Sketcher.Constraint("Symmetric", 10, 3, 38, 3, -2),
    Sketcher.Constraint("Symmetric", 8, 3, 40, 3, -2),
    Sketcher.Constraint("Symmetric", 6, 3, 42, 3, -2),
    Sketcher.Constraint("Symmetric", 4, 3, 44, 3, -2),
    Sketcher.Constraint("Symmetric", 2, 3, 46, 3, -2),
    Sketcher.Constraint("Symmetric", 58, 3, 62, 3, -2),
    Sketcher.Constraint("Symmetric", 56, 3, 64, 3, -2),
    Sketcher.Constraint("Symmetric", 54, 3, 66, 3, -2),
    Sketcher.Constraint("Symmetric", 52, 3, 68, 3, -2),
    Sketcher.Constraint("Symmetric", 50, 3, 70, 3, -2),
    Sketcher.Constraint("Symmetric", 59, 1, 60, 1, -2),
    Sketcher.Constraint("PointOnObject", 48, 3, -2),
    Sketcher.Constraint("Horizontal", 5, 3, 6, 3),
    Sketcher.Constraint("Horizontal", 10, 3, 14, 3),
    Sketcher.Constraint("Horizontal", 8, 3, 16, 3),
    Sketcher.Constraint("Horizontal", 17, 3, 18, 3),
    Sketcher.Constraint("Horizontal", 4, 3, 20, 3),
    Sketcher.Constraint("Horizontal", 2, 3, 22, 3),
    Sketcher.Constraint("Horizontal", 53, 3, 54, 3),
    Sketcher.Constraint("Horizontal", 11, 1, 12, 1),
    Sketcher.Constraint("Horizontal", 10, 1, 13, 1),
    Sketcher.Constraint("Horizontal", 8, 1, 15, 1),
    Sketcher.Constraint("Horizontal", 6, 1, 17, 1),
    Sketcher.Constraint("Horizontal", 4, 1, 19, 1),
    Sketcher.Constraint("Horizontal", 2, 1, 21, 1),
    Sketcher.Constraint("Horizontal", 0, 1, 23, 1),
    Sketcher.Constraint("Vertical", 4, 3, 8, 3),
    Sketcher.Constraint("Vertical", 2, 3, 10, 3),
    Sketcher.Constraint("Vertical", 52, 3, 56, 3),
    Sketcher.Constraint("Vertical", 50, 3, 58, 3),
    Sketcher.Constraint("Vertical", 4, 1, 7, 1),
    Sketcher.Constraint("Vertical", 2, 1, 9, 1),
    Sketcher.Constraint("Vertical", 0, 1, 11, 1),
    Sketcher.Constraint("Vertical", 52, 1, 55, 1),
    Sketcher.Constraint("Vertical", 50, 1, 57, 1),
    Sketcher.Constraint("Vertical", 48, 1, 59, 1),
    Sketcher.Constraint("Radius", 1, Q("1.5 mm")),
    Sketcher.Constraint("Radius", 0, Q("0.25 mm")),
    Sketcher.Constraint("DistanceX", -1, 1, 0, 3, Q("34 mm")),
    Sketcher.Constraint("DistanceY", 1, 3, -1, 1, Q("32 mm")),
    Sketcher.Constraint("DistanceY", -1, 1, 49, 3, Q("40 mm")),
    Sketcher.Constraint("DistanceY", 0, 3, -1, 1, Q("30.5 mm")),
    Sketcher.Constraint("DistanceX", -1, 1, 6, 3, Q("35.5 mm")),
    Sketcher.Constraint("DistanceY", -1, 1, 48, 3, Q("41.5 mm")),
    Sketcher.Constraint("DistanceX", -1, 1, 54, 3, Q("1.5 mm")),
    Sketcher.Constraint("DistanceX", -1, 1, 2, 3, Q("34.75 mm")),
    Sketcher.Constraint("DistanceY", 4, 3, -1, 1, Q("31.25 mm")),
    Sketcher.Constraint("DistanceX", -1, 1, 50, 3, Q("0.75 mm")),
    Sketcher.Constraint("DistanceY", -1, 1, 52, 3, Q("40.75 mm")),
    Sketcher.Constraint("DistanceY", 2, 3, -1, 1, Q("30.700962 mm")),
    Sketcher.Constraint("DistanceX", -1, 1, 4, 3, Q("35.299038 mm")),
    Sketcher.Constraint("DistanceY", -1, 1, 50, 3, Q("41.299038 mm")),
    Sketcher.Constraint("DistanceX", -1, 1, 52, 3, Q("1.299038 mm")),
])
sketch6.setExpression("Constraints[219]", "Params.sketch6_radius")
sketch6.setExpression("Constraints[220]", "Params.sketch6_radius2")
pocket1 = doc.addObject("PartDesign::Pocket", "Pocket")
body.addObject(pocket1)
pocket1.Profile = sketch6
pocket1.setExpression("Length", "Params.pocket1_length")
pocket1.Reversed = True

# Sketch on XY plane
sketch7 = doc.addObject("Sketcher::SketchObject", "Sketch006")
body.addObject(sketch7)
sketch7.AttachmentSupport = (doc.XY_Plane, [""])
sketch7.MapMode = "FlatFace"
sketch7.addGeometry([
    Part.LineSegment(App.Vector(1.5, -17.116257, 0), App.Vector(1.5, -9.116257, 0)),  # 0
    Part.ArcOfCircle(Part.Circle(App.Vector(2, -9.116257, 0), App.Vector(0, 0, 1), 0.5), math.radians(0), math.radians(180)),  # 1
    Part.LineSegment(App.Vector(2.5, -9.116257, 0), App.Vector(2.5, -17.116257, 0)),  # 2
    Part.ArcOfCircle(Part.Circle(App.Vector(2, -17.116257, 0), App.Vector(0, 0, 1), 0.5), math.radians(180), math.radians(360)),  # 3
    Part.LineSegment(App.Vector(5.5, -17.116257, 0), App.Vector(5.5, -9.116257, 0)),  # 4
    Part.ArcOfCircle(Part.Circle(App.Vector(6, -9.116257, 0), App.Vector(0, 0, 1), 0.5), math.radians(0), math.radians(180)),  # 5
    Part.LineSegment(App.Vector(6.5, -9.116257, 0), App.Vector(6.5, -17.116257, 0)),  # 6
    Part.ArcOfCircle(Part.Circle(App.Vector(6, -17.116257, 0), App.Vector(0, 0, 1), 0.5), math.radians(180), math.radians(360)),  # 7
    Part.LineSegment(App.Vector(9.5, -17.116257, 0), App.Vector(9.5, -9.116257, 0)),  # 8
    Part.ArcOfCircle(Part.Circle(App.Vector(10, -9.116257, 0), App.Vector(0, 0, 1), 0.5), math.radians(0), math.radians(180)),  # 9
    Part.LineSegment(App.Vector(10.5, -9.116257, 0), App.Vector(10.5, -17.116257, 0)),  # 10
    Part.ArcOfCircle(Part.Circle(App.Vector(10, -17.116257, 0), App.Vector(0, 0, 1), 0.5), math.radians(180), math.radians(360)),  # 11
    Part.LineSegment(App.Vector(13.5, -17.116257, 0), App.Vector(13.5, -9.116257, 0)),  # 12
    Part.ArcOfCircle(Part.Circle(App.Vector(14, -9.116257, 0), App.Vector(0, 0, 1), 0.5), math.radians(0), math.radians(180)),  # 13
    Part.LineSegment(App.Vector(14.5, -9.116257, 0), App.Vector(14.5, -17.116257, 0)),  # 14
    Part.ArcOfCircle(Part.Circle(App.Vector(14, -17.116257, 0), App.Vector(0, 0, 1), 0.5), math.radians(180), math.radians(360)),  # 15
    Part.LineSegment(App.Vector(17.5, -17.116257, 0), App.Vector(17.5, -9.116257, 0)),  # 16
    Part.ArcOfCircle(Part.Circle(App.Vector(18, -9.116257, 0), App.Vector(0, 0, 1), 0.5), math.radians(0), math.radians(180)),  # 17
    Part.LineSegment(App.Vector(18.5, -9.116257, 0), App.Vector(18.5, -17.116257, 0)),  # 18
    Part.ArcOfCircle(Part.Circle(App.Vector(18, -17.116257, 0), App.Vector(0, 0, 1), 0.5), math.radians(180), math.radians(360)),  # 19
], False)
sketch7.addConstraint([
    Sketcher.Constraint("Tangent", 0, 2, 1, 2),
    Sketcher.Constraint("Tangent", 1, 1, 2, 1),
    Sketcher.Constraint("Tangent", 2, 2, 3, 2),
    Sketcher.Constraint("Tangent", 3, 1, 0, 1),
    Sketcher.Constraint("Tangent", 4, 2, 5, 2),
    Sketcher.Constraint("Tangent", 5, 1, 6, 1),
    Sketcher.Constraint("Tangent", 6, 2, 7, 2),
    Sketcher.Constraint("Tangent", 7, 1, 4, 1),
    Sketcher.Constraint("Tangent", 8, 2, 9, 2),
    Sketcher.Constraint("Tangent", 9, 1, 10, 1),
    Sketcher.Constraint("Tangent", 10, 2, 11, 2),
    Sketcher.Constraint("Tangent", 11, 1, 8, 1),
    Sketcher.Constraint("Tangent", 12, 2, 13, 2),
    Sketcher.Constraint("Tangent", 13, 1, 14, 1),
    Sketcher.Constraint("Tangent", 14, 2, 15, 2),
    Sketcher.Constraint("Tangent", 15, 1, 12, 1),
    Sketcher.Constraint("Tangent", 16, 2, 17, 2),
    Sketcher.Constraint("Tangent", 17, 1, 18, 1),
    Sketcher.Constraint("Tangent", 18, 2, 19, 2),
    Sketcher.Constraint("Tangent", 19, 1, 16, 1),
    Sketcher.Constraint("Vertical", 0),
    Sketcher.Constraint("Vertical", 2),
    Sketcher.Constraint("Vertical", 4),
    Sketcher.Constraint("Vertical", 6),
    Sketcher.Constraint("Vertical", 8),
    Sketcher.Constraint("Vertical", 10),
    Sketcher.Constraint("Vertical", 12),
    Sketcher.Constraint("Vertical", 14),
    Sketcher.Constraint("Vertical", 16),
    Sketcher.Constraint("Vertical", 18),
    Sketcher.Constraint("Equal", 3, 5),
    Sketcher.Constraint("Equal", 7, 9),
    Sketcher.Constraint("Equal", 11, 13),
    Sketcher.Constraint("Equal", 15, 17),
    Sketcher.Constraint("Horizontal", 1, 3, 5, 3),
    Sketcher.Constraint("Horizontal", 3, 3, 7, 3),
    Sketcher.Constraint("Horizontal", 5, 3, 9, 3),
    Sketcher.Constraint("Horizontal", 7, 3, 11, 3),
    Sketcher.Constraint("Horizontal", 9, 3, 13, 3),
    Sketcher.Constraint("Horizontal", 11, 3, 15, 3),
    Sketcher.Constraint("Horizontal", 13, 3, 17, 3),
    Sketcher.Constraint("Horizontal", 15, 3, 19, 3),
    Sketcher.Constraint("Radius", 1, Q("0.5 mm")),
    Sketcher.Constraint("DistanceY", 0, 1, 0, 2, Q("8 mm")),
    Sketcher.Constraint("DistanceX", -1, 1, 1, 3, Q("2 mm")),
    Sketcher.Constraint("DistanceX", -1, 1, 5, 3, Q("6 mm")),
    Sketcher.Constraint("DistanceX", -1, 1, 9, 3, Q("10 mm")),
    Sketcher.Constraint("DistanceX", -1, 1, 13, 3, Q("14 mm")),
    Sketcher.Constraint("DistanceX", -1, 1, 17, 3, Q("18 mm")),
    Sketcher.Constraint("DistanceY", 1, 3, -1, 1, Q("9.116257 mm")),
])
sketch7.setExpression("Constraints[42]", "Params.sketch7_radius")
sketch7.setExpression("Constraints[43]", "Params.sketch7_height")
pocket2 = doc.addObject("PartDesign::Pocket", "Pocket001")
body.addObject(pocket2)
pocket2.Profile = sketch7
pocket2.Type = "ThroughAll"
pocket2.Reversed = True
doc.recompute()

mirrored = doc.addObject("PartDesign::Mirrored", "Mirrored")
body.addObject(mirrored)
mirrored.Originals = [pad2, pad3, hole, pocket2]
mirrored.MirrorPlane = (doc.YZ_Plane, [""])
body.Tip = mirrored
doc.recompute()

fillet2 = doc.addObject("PartDesign::Fillet", "Fillet001")
body.addObject(fillet2)
fillet2.Base = (mirrored, edges_at(mirrored, [
    (38.191, 33.941, 1),
    (38.191, 33.941, 7),
    (51.007, -45.153, 1),
    (51.007, -45.153, 7),
    (3.646, 40, 1.146),
    (3.354, 40, 5.354),
    (37.646, -32, 1.146),
    (37.354, -32, 5.354),
    (-30.354, -32, 1.146),
    (-30.646, -32, 5.354),
]))
fillet2.setExpression("Radius", "Params.fillet2_radius")

doc.recompute()
